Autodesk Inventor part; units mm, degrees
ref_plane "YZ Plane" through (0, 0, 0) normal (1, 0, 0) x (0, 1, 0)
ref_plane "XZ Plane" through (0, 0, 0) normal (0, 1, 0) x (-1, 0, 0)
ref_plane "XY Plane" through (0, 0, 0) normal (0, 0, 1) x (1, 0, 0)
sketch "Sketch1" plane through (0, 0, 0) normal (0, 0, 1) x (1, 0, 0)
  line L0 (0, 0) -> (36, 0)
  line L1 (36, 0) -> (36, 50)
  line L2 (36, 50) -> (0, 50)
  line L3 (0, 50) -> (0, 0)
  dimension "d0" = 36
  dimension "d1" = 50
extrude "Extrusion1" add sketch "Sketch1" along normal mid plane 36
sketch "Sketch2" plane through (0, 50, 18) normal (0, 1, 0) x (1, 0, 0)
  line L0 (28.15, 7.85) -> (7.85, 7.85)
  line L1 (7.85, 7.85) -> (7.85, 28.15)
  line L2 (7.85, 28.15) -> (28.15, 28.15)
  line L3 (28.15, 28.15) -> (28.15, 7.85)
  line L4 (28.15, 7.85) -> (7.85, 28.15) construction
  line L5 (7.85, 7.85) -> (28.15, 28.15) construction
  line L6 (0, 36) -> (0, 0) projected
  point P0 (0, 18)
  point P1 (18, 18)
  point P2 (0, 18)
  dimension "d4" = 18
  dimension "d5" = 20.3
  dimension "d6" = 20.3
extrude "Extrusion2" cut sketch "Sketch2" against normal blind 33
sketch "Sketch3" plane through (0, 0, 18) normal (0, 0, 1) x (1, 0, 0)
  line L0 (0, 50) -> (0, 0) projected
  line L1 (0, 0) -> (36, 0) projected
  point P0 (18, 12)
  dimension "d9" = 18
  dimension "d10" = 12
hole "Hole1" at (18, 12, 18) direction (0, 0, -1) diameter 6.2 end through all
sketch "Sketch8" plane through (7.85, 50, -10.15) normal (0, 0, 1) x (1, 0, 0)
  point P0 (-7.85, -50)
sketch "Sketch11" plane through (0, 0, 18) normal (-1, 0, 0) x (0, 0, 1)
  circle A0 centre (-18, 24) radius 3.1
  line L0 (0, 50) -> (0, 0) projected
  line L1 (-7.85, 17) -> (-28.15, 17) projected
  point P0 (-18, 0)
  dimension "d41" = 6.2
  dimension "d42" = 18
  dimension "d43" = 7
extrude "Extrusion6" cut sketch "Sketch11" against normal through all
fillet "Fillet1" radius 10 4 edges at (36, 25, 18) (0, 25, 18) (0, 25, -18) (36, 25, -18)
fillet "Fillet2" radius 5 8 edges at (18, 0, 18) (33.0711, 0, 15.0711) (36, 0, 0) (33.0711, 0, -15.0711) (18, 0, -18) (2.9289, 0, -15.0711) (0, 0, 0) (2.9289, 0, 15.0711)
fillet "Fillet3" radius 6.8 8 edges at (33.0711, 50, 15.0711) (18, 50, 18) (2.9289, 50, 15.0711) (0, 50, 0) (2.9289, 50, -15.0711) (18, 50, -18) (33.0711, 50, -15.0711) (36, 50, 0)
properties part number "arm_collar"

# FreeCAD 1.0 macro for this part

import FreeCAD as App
import Part
import Sketcher


def edges_at(feature, points):
    """Names of the edges that pass closest to the given points."""
    edges = feature.Shape.Edges
    near = lambda p: min(range(len(edges)), key=lambda i: edges[i].distToShape(Part.Vertex(*p))[0])
    return sorted({f"Edge{near(p) + 1}" for p in points})

doc = App.newDocument("Part")
body = doc.addObject("PartDesign::Body", "Body")

sketch1 = doc.addObject("Sketcher::SketchObject", "Sketch")
body.addObject(sketch1)
sketch1.AttachmentSupport = (doc.XY_Plane, [""])
sketch1.MapMode = "FlatFace"
sketch1.addGeometry([
    Part.LineSegment(App.Vector(0, 50, 0), App.Vector(0, 0, 0)),
    Part.LineSegment(App.Vector(0, 0, 0), App.Vector(36, 0, 0)),
    Part.LineSegment(App.Vector(36, 0, 0), App.Vector(36, 50, 0)),
    Part.LineSegment(App.Vector(36, 50, 0), App.Vector(0, 50, 0)),
], False)
sketch1.addConstraint([
    Sketcher.Constraint("Coincident", 0, 2, 1, 1),
    Sketcher.Constraint("Coincident", 1, 2, 2, 1),
    Sketcher.Constraint("Coincident", 2, 2, 3, 1),
    Sketcher.Constraint("Coincident", 3, 2, 0, 1),
    Sketcher.Constraint("Vertical", 0),
    Sketcher.Constraint("Horizontal", 1),
    Sketcher.Constraint("Vertical", 2),
    Sketcher.Constraint("Horizontal", 3),
    Sketcher.Constraint("Coincident", 0, 2, -1, 1),
    Sketcher.Constraint("DistanceX", 1, 1, 1, 2, 36.0),
    Sketcher.Constraint("DistanceY", 0, 2, 0, 1, 50.0),
])
pad1 = doc.addObject("PartDesign::Pad", "Pad")
body.addObject(pad1)
pad1.Profile = sketch1
pad1.Length = 36
pad1.Midplane = True

sketch2 = doc.addObject("Sketcher::SketchObject", "Sketch001")
body.addObject(sketch2)
sketch2.AttachmentSupport = (doc.XZ_Plane, [""])
sketch2.MapMode = "FlatFace"
sketch2.AttachmentOffset = App.Placement(App.Vector(0, 0, -50), App.Rotation())
sketch2.addGeometry([
    Part.LineSegment(App.Vector(8, 10, 0), App.Vector(28, 10, 0)),
    Part.LineSegment(App.Vector(28, 10, 0), App.Vector(28, -10, 0)),
    Part.LineSegment(App.Vector(28, -10, 0), App.Vector(8, -10, 0)),
    Part.LineSegment(App.Vector(8, -10, 0), App.Vector(8, 10, 0)),
], False)
sketch2.addConstraint([
    Sketcher.Constraint("Coincident", 0, 2, 1, 1),
    Sketcher.Constraint("Coincident", 1, 2, 2, 1),
    Sketcher.Constraint("Coincident", 2, 2, 3, 1),
    Sketcher.Constraint("Coincident", 3, 2, 0, 1),
    Sketcher.Constraint("Horizontal", 0),
    Sketcher.Constraint("Vertical", 1),
    Sketcher.Constraint("Horizontal", 2),
    Sketcher.Constraint("Vertical", 3),
    Sketcher.Constraint("Equal", 2, 1),
    Sketcher.Constraint("DistanceX", 0, 1, 0, 2, 20.3),
    Sketcher.Constraint("DistanceX", -1, 1, 0, 2, 28.15),
    Sketcher.Constraint("DistanceY", -1, 1, 0, 2, 10.15),
])
pocket1 = doc.addObject("PartDesign::Pocket", "Pocket")
body.addObject(pocket1)
pocket1.Profile = sketch2
pocket1.Length = 33
pocket1.Reversed = True

sketch3 = doc.addObject("Sketcher::SketchObject", "Sketch002")
body.addObject(sketch3)
sketch3.AttachmentSupport = (doc.XY_Plane, [""])
sketch3.MapMode = "FlatFace"
sketch3.AttachmentOffset = App.Placement(App.Vector(0, 0, 18), App.Rotation())
sketch3.addGeometry(Part.Circle(App.Vector(18, 12, 0), App.Vector(0, 0, 1), 3.1), False)
sketch3.addConstraint([
    Sketcher.Constraint("Diameter", 0, 6.2),
    Sketcher.Constraint("DistanceX", -1, 1, 0, 3, 18.0),
    Sketcher.Constraint("DistanceY", -1, 1, 0, 3, 12.0),
])
doc.recompute()
hole = doc.addObject("PartDesign::Hole", "Hole")
body.addObject(hole)
hole.Profile = sketch3
hole.ThreadType = "None"
hole.Diameter = 6.2
hole.DepthType = "ThroughAll"

sketch4 = doc.addObject("Sketcher::SketchObject", "Sketch003")
body.addObject(sketch4)
sketch4.AttachmentSupport = (doc.YZ_Plane, [""])
sketch4.MapMode = "FlatFace"
sketch4.addGeometry(Part.Circle(App.Vector(24, 0, 0), App.Vector(0, 0, 1), 3.1), False)
sketch4.addConstraint([
    Sketcher.Constraint("PointOnObject", 0, 3, -1),
    Sketcher.Constraint("Diameter", 0, 6.2),
    Sketcher.Constraint("DistanceX", -1, 1, 0, 3, 24.0),
])
pocket2 = doc.addObject("PartDesign::Pocket", "Pocket001")
body.addObject(pocket2)
pocket2.Profile = sketch4
pocket2.Type = "ThroughAll"
pocket2.Reversed = True
doc.recompute()

fillet = doc.addObject("PartDesign::Fillet", "Fillet")
body.addObject(fillet)
fillet.Base = (pocket2, edges_at(pocket2, [
    (36, 25, 18),
    (0, 25, 18),
    (0, 25, -18),
    (36, 25, -18),
]))
fillet.Radius = 10
doc.recompute()

fillet2 = doc.addObject("PartDesign::Fillet", "Fillet001")
body.addObject(fillet2)
fillet2.Base = (fillet, edges_at(fillet, [
    (18, 0, 18),
    (33.071, 0, 15.071),
    (36, 0, 0),
    (33.071, 0, -15.071),
    (18, 0, -18),
    (2.929, 0, -15.071),
    (0, 0, 0),
    (2.929, 0, 15.071),
]))
fillet2.Radius = 5
doc.recompute()

fillet3 = doc.addObject("PartDesign::Fillet", "Fillet002")
body.addObject(fillet3)
fillet3.Base = (fillet2, edges_at(fillet2, [
    (33.071, 50, 15.071),
    (18, 50, 18),
    (2.929, 50, 15.071),
    (0, 50, 0),
    (2.929, 50, -15.071),
    (18, 50, -18),
    (33.071, 50, -15.071),
    (36, 50, 0),
]))
fillet3.Radius = 6.8

doc.recompute()
